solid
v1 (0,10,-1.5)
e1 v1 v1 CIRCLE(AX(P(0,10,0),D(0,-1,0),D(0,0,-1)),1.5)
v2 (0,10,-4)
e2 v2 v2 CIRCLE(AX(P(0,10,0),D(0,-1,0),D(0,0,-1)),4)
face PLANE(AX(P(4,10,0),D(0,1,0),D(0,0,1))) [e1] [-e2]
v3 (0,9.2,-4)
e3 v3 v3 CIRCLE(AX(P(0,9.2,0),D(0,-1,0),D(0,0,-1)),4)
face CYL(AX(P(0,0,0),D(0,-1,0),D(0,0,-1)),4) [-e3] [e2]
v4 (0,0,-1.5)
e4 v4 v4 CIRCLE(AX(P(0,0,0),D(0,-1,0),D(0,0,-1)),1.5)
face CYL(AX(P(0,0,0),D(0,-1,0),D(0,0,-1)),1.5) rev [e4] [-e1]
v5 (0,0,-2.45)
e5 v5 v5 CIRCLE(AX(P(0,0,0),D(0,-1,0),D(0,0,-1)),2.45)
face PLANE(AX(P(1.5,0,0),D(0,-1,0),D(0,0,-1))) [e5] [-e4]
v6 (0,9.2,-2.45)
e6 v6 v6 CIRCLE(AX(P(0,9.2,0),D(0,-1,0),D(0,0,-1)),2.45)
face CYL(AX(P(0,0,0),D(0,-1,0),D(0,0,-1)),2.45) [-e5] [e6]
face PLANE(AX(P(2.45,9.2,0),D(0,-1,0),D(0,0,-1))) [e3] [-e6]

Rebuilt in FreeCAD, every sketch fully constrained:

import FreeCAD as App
import Part
import Sketcher

V = App.Vector


def add_polygon(sketch, points):
    """Adds a closed chain of lines whose ends are joined by coincident constraints."""
    first, n = sketch.GeometryCount, len(points)
    for a, b in zip(points, points[1:] + points[:1]):
        sketch.addGeometry(Part.LineSegment(App.Vector(*a, 0), App.Vector(*b, 0)), False)
    for i in range(n):
        sketch.addConstraint(Sketcher.Constraint("Coincident", first + i, 2, first + (i + 1) % n, 1))

doc = App.newDocument("Part")
body = doc.addObject("PartDesign::Body", "Body")

sketch1 = body.newObject("Sketcher::SketchObject", "Sketch")
sketch1.AttachmentSupport = (doc.getObject("XY_Plane"), [""])
sketch1.MapMode = "FlatFace"
add_polygon(sketch1, [(4, 10), (1.5, 10), (1.5, 0), (2.5, 0), (2.5, 9.2), (4, 9.2)])
sketch1.addConstraint([
    Sketcher.Constraint("Horizontal", 0),
    Sketcher.Constraint("Vertical", 1),
    Sketcher.Constraint("Horizontal", 2),
    Sketcher.Constraint("Vertical", 3),
    Sketcher.Constraint("Horizontal", 4),
    Sketcher.Constraint("Vertical", 5),
    Sketcher.Constraint("PointOnObject", 1, 2, -1),
    Sketcher.Constraint("DistanceY", 1, 2, 1, 1, 10.0),
    Sketcher.Constraint("DistanceX", 0, 2, 0, 1, 2.5),
    Sketcher.Constraint("DistanceY", 3, 1, 3, 2, 9.2),
    Sketcher.Constraint("DistanceX", -1, 1, 4, 2, 4.0),
    Sketcher.Constraint("DistanceX", 2, 1, 2, 2, 0.95),
])
revolution = body.newObject("PartDesign::Revolution", "Revolution")
revolution.Profile = sketch1
revolution.ReferenceAxis = (sketch1, ["V_Axis"])
revolution.Angle = 360

doc.recompute()
